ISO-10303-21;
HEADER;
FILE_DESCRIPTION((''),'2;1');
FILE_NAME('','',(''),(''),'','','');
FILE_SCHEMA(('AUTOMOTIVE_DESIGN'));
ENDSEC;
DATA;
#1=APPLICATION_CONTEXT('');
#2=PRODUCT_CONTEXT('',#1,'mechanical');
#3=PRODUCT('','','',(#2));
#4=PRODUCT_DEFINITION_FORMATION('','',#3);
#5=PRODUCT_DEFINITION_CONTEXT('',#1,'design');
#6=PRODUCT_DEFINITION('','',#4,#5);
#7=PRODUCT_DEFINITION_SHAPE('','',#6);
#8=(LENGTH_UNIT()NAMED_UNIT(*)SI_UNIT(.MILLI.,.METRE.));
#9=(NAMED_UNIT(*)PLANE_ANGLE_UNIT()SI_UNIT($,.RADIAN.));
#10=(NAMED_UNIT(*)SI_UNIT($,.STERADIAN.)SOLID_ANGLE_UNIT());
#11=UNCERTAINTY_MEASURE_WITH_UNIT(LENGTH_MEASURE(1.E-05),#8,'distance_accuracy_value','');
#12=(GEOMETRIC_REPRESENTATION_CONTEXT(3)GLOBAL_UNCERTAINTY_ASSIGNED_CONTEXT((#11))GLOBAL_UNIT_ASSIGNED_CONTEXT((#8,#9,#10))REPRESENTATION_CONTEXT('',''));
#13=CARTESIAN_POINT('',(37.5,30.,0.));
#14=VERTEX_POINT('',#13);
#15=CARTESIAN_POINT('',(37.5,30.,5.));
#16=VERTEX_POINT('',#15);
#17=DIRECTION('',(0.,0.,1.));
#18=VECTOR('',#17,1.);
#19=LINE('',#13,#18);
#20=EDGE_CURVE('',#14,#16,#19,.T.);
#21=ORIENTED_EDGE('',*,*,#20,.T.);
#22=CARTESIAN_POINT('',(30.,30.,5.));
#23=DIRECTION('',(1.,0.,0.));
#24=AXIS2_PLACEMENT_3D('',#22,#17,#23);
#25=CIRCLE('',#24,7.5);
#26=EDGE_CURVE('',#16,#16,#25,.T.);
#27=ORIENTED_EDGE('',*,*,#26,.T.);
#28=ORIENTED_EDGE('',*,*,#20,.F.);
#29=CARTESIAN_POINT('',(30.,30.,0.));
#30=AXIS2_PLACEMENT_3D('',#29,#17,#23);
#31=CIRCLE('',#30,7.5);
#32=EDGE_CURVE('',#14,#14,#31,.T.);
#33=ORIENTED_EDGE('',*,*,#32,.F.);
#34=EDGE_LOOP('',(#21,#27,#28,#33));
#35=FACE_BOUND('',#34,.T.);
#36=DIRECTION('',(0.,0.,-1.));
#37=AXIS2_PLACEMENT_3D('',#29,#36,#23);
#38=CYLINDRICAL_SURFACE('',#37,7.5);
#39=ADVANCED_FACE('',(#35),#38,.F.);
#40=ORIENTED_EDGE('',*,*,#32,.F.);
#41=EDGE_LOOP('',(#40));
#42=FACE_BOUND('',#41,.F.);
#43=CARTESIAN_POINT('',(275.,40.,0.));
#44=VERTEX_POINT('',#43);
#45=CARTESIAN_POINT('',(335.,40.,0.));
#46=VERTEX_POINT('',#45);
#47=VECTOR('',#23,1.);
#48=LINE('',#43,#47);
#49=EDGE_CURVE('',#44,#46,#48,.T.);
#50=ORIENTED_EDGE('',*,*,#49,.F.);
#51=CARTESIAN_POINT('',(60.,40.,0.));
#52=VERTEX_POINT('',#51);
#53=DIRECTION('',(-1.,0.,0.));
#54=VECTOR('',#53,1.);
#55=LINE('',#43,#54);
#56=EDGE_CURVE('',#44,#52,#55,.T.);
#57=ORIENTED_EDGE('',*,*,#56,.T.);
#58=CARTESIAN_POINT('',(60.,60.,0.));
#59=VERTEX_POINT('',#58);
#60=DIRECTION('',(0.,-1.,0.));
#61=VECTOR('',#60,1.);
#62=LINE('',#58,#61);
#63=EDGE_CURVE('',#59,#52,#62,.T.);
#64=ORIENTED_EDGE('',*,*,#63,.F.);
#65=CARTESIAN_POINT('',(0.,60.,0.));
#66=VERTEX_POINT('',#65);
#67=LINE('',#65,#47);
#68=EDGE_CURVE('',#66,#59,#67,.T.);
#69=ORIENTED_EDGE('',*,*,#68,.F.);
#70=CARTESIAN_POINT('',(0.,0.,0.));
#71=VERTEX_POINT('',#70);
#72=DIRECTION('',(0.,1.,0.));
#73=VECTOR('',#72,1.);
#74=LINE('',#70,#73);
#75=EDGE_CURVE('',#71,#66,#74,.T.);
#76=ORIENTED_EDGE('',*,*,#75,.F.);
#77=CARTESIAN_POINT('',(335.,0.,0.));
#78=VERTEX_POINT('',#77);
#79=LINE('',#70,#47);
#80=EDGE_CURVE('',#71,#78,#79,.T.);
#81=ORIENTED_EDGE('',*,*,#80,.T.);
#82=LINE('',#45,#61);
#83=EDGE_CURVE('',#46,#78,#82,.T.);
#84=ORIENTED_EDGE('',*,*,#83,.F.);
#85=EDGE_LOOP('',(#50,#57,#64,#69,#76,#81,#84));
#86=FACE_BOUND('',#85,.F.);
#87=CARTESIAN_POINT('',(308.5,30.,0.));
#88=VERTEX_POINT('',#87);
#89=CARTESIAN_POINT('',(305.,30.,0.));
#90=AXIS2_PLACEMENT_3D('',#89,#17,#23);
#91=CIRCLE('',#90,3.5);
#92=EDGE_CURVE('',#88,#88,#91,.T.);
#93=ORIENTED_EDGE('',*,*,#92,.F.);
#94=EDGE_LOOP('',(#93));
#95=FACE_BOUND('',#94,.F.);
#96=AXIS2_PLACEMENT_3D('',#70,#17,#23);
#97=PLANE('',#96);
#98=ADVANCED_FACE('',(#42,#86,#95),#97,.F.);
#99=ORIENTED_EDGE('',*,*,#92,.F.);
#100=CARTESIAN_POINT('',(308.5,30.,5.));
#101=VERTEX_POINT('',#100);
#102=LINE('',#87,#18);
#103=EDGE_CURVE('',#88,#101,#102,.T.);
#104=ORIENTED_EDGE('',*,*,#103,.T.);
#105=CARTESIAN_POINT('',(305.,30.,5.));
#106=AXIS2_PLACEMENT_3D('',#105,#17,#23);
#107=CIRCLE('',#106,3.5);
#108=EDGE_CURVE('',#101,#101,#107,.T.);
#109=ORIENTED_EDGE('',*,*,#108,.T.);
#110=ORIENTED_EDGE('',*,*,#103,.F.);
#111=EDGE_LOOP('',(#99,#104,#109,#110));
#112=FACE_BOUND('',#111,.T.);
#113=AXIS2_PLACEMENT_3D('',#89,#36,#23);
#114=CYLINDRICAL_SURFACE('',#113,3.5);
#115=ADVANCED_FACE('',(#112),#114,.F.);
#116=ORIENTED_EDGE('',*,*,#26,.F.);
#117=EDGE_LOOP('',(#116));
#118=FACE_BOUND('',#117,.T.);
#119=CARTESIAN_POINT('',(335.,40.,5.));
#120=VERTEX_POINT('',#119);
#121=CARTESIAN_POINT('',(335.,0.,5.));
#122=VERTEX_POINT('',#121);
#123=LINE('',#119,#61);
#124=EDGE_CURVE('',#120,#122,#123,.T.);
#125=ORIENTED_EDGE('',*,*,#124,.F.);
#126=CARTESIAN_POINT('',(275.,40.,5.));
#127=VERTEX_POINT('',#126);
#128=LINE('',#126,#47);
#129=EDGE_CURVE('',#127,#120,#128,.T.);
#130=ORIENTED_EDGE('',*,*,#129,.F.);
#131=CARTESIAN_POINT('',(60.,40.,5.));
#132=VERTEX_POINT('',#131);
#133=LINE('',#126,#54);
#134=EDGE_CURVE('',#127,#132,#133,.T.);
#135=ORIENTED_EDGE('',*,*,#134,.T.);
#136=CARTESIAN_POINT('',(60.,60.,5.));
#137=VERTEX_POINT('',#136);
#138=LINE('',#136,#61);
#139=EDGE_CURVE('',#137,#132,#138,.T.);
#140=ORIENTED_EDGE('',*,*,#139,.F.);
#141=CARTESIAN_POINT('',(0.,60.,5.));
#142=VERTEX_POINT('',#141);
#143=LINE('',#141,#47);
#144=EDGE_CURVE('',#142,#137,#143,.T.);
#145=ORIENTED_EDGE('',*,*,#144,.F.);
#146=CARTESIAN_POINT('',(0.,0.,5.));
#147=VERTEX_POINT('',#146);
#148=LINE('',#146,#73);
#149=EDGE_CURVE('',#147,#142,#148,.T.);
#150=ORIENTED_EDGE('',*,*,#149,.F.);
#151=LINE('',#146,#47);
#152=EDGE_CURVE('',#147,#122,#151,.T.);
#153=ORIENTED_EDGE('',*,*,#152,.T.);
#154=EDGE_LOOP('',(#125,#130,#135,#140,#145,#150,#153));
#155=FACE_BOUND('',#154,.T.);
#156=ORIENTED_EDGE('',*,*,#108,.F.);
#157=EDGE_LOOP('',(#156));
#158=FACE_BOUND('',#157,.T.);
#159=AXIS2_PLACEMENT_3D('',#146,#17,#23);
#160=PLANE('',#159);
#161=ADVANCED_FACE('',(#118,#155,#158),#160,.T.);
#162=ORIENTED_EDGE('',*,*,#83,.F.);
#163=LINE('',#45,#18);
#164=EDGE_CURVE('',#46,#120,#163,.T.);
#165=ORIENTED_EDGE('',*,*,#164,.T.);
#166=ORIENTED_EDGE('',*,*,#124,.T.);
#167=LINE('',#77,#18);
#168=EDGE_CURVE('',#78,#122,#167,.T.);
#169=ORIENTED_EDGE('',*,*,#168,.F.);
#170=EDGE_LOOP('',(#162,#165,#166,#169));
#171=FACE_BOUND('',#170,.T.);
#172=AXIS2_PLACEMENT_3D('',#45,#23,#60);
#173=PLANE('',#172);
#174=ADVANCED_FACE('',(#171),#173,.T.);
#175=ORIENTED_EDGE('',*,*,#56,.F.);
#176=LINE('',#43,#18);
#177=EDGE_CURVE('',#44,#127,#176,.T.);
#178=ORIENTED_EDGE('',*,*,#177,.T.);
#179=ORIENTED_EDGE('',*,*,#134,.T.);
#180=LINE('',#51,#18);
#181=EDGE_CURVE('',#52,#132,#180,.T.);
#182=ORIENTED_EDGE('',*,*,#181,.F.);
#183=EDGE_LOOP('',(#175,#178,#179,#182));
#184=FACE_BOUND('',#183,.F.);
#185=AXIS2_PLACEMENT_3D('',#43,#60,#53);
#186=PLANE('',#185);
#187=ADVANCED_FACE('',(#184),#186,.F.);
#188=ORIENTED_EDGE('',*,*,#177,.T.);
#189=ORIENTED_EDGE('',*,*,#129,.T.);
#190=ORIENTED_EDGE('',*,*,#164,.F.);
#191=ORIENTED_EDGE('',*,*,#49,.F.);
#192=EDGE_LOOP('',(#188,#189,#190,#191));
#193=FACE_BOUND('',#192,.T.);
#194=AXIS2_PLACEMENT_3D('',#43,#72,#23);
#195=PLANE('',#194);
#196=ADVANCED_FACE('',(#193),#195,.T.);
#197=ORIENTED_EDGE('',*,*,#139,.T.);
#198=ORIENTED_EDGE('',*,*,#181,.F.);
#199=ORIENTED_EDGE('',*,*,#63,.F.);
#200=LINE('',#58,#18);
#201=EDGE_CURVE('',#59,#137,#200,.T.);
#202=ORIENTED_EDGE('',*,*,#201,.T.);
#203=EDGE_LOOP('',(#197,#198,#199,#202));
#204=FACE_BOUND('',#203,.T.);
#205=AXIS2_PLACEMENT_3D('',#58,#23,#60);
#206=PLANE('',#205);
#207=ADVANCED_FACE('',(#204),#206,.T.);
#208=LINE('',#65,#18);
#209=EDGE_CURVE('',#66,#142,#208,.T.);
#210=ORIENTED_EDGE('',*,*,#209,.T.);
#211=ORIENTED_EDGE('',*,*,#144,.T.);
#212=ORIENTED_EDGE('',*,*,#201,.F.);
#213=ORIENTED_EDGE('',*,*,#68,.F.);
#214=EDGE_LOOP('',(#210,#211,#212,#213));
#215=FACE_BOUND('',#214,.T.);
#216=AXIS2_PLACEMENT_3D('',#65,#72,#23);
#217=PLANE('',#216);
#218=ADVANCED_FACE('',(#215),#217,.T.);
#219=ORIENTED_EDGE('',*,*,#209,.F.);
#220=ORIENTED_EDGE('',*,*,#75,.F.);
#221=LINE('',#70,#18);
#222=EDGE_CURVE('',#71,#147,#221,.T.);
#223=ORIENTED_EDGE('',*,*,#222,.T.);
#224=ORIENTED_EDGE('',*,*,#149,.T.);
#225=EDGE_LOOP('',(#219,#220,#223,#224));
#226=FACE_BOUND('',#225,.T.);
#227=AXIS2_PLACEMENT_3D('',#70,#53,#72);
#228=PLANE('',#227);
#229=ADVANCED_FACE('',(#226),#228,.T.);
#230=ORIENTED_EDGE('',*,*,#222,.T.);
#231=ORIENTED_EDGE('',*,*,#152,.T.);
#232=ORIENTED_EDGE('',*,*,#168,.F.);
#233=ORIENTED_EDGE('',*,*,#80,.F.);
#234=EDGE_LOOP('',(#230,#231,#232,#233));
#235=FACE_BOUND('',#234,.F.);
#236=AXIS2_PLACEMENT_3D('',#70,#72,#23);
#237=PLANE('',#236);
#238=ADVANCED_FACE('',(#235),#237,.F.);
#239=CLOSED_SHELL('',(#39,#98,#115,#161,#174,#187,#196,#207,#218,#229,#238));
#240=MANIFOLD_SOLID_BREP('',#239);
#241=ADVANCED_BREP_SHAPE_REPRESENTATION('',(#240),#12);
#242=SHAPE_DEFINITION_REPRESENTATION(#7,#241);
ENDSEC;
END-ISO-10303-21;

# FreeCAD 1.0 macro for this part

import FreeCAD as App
import Part
import Sketcher


def add_polygon(sketch, points):
    """Adds a closed chain of lines whose ends are joined by coincident constraints."""
    first, n = sketch.GeometryCount, len(points)
    for a, b in zip(points, points[1:] + points[:1]):
        sketch.addGeometry(Part.LineSegment(App.Vector(*a, 0), App.Vector(*b, 0)), False)
    for i in range(n):
        sketch.addConstraint(Sketcher.Constraint("Coincident", first + i, 2, first + (i + 1) % n, 1))

doc = App.newDocument("Part")
body = doc.addObject("PartDesign::Body", "Body")

# Sketch on XY plane
sketch1 = body.newObject("Sketcher::SketchObject", "Sketch")
sketch1.AttachmentSupport = (doc.getObject("XY_Plane"), [""])
sketch1.MapMode = "FlatFace"
add_polygon(sketch1, [(0, 60), (0, 0), (335, 0), (335, 40), (60, 40), (60, 60)])  # lines 0-5
sketch1.addGeometry(Part.Circle(App.Vector(30, 30, 0), App.Vector(0, 0, 1), 7.5), False)  # 6
sketch1.addGeometry(Part.Circle(App.Vector(305, 30, 0), App.Vector(0, 0, 1), 3.5), False)  # 7
sketch1.addConstraint([
    Sketcher.Constraint("Vertical", 0),
    Sketcher.Constraint("Horizontal", 1),
    Sketcher.Constraint("Vertical", 2),
    Sketcher.Constraint("Horizontal", 3),
    Sketcher.Constraint("Vertical", 4),
    Sketcher.Constraint("Horizontal", 5),
    Sketcher.Constraint("Coincident", 0, 2, -1, 1),
    Sketcher.Constraint("Horizontal", 6, 3, 7, 3),
    Sketcher.Constraint("Equal", 5, 0),
    Sketcher.Constraint("Diameter", 6, 15.0),
    Sketcher.Constraint("Diameter", 7, 7.0),
    Sketcher.Constraint("DistanceX", 5, 2, 5, 1, 60.0),
    Sketcher.Constraint("DistanceY", 4, 1, 4, 2, 20.0),
    Sketcher.Constraint("DistanceX", 1, 1, 1, 2, 335.0),
    Sketcher.Constraint("DistanceX", -1, 1, 6, 3, 30.0),
    Sketcher.Constraint("DistanceY", -1, 1, 6, 3, 30.0),
    Sketcher.Constraint("DistanceX", -1, 1, 7, 3, 305.0),
])
pad1 = body.newObject("PartDesign::Pad", "Pad")
pad1.Profile = sketch1
pad1.Length = 5

doc.recompute()
